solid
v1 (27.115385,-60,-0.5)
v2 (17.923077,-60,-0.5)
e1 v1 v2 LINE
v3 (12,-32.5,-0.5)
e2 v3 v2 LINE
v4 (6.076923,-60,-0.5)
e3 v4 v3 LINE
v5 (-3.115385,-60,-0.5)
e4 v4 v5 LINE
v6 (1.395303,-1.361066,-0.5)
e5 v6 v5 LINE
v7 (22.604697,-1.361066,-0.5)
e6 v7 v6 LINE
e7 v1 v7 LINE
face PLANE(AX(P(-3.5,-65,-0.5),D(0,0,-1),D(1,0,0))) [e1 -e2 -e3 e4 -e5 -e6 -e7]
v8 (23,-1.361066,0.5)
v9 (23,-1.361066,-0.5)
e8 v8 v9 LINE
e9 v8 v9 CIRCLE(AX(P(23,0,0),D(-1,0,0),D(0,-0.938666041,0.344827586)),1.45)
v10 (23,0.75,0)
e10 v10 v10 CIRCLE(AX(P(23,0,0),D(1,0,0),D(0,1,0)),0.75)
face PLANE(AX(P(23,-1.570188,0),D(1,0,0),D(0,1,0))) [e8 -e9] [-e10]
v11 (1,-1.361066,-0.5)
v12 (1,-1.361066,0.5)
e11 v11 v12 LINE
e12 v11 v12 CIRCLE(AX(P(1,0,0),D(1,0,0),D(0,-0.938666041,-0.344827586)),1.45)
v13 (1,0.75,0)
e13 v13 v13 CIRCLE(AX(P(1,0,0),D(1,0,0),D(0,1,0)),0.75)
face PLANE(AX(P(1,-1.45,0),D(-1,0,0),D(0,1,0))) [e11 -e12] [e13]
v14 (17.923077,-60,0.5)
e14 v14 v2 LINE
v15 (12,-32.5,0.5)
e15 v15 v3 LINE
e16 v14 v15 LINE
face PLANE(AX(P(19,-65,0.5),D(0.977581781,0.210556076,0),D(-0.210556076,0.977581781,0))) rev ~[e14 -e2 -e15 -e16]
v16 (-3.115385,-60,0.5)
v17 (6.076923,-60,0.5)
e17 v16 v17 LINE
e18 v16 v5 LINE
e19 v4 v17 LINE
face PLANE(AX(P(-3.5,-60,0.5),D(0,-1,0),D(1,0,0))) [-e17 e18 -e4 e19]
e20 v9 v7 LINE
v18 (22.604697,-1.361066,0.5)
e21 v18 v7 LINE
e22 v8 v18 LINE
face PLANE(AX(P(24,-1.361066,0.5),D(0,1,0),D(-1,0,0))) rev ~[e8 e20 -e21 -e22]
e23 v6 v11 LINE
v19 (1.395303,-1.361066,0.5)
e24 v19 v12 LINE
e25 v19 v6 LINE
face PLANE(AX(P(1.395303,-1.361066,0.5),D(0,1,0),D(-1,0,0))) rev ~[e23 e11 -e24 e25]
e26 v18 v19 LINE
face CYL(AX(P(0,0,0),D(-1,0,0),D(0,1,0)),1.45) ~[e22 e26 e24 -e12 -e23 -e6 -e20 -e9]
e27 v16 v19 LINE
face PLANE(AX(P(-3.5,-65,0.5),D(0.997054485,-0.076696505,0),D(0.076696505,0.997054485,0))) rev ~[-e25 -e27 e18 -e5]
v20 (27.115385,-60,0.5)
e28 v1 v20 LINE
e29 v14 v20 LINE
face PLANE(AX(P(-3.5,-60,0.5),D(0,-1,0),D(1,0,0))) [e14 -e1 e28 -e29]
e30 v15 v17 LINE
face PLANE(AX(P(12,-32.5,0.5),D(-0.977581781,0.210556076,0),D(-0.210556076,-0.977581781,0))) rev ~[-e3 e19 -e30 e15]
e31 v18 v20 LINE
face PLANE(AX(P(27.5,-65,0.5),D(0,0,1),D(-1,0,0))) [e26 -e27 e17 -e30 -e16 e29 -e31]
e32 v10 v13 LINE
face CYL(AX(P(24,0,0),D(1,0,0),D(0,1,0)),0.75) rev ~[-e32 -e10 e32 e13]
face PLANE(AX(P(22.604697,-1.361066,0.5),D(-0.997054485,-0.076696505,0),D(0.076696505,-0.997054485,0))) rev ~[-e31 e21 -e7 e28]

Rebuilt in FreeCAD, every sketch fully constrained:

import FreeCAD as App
import Part
import Sketcher
Q = App.Units.Quantity


def add_polygon(sketch, points):
    """Adds a closed chain of lines whose ends are joined by coincident constraints."""
    first, n = sketch.GeometryCount, len(points)
    for a, b in zip(points, points[1:] + points[:1]):
        sketch.addGeometry(Part.LineSegment(App.Vector(*a, 0), App.Vector(*b, 0)), False)
    for i in range(n):
        sketch.addConstraint(Sketcher.Constraint("Coincident", first + i, 2, first + (i + 1) % n, 1))

doc = App.newDocument("Part")
body = doc.addObject("PartDesign::Body", "Body")

sketch1 = body.newObject("Sketcher::SketchObject", "Sketch")
sketch1.AttachmentSupport = (doc.getObject("YZ_Plane"), [""])
sketch1.MapMode = "FlatFace"
sketch1.addGeometry(Part.Circle(App.Vector(0, 0, 0), App.Vector(0, 0, 1), 1.45), False)
sketch1.addConstraint([
    Sketcher.Constraint("Coincident", 0, 3, -1, 1),
    Sketcher.Constraint("Diameter", 0, Q("2.9 mm")),
])
pad1 = body.newObject("PartDesign::Pad", "Pad")
pad1.Profile = sketch1
pad1.Length = 24

sketch2 = body.newObject("Sketcher::SketchObject", "Sketch001")
sketch2.AttachmentSupport = (doc.getObject("XZ_Plane"), [""])
sketch2.MapMode = "FlatFace"
sketch2.AttachmentOffset = App.Placement(App.Vector(0, 0, 65), App.Rotation())
add_polygon(sketch2, [(-3.5, 0.5), (-3.5, -0.5), (27.5, -0.5), (27.5, 0.5)])
sketch2.addConstraint([
    Sketcher.Constraint("Vertical", 0),
    Sketcher.Constraint("Horizontal", 1),
    Sketcher.Constraint("Vertical", 2),
    Sketcher.Constraint("Horizontal", 3),
    Sketcher.Constraint("DistanceX", 1, 1, 1, 2, Q("31 mm")),
    Sketcher.Constraint("DistanceY", 0, 2, 0, 1, Q("1 mm")),
    Sketcher.Constraint("DistanceX", 0, 2, -1, 1, Q("3.5 mm")),
    Sketcher.Constraint("DistanceY", 0, 2, -1, 1, Q("0.5 mm")),
])
pad2 = body.newObject("PartDesign::Pad", "Pad001")
pad2.Profile = sketch2
pad2.Length = 65
pad2.Reversed = True

sketch3 = body.newObject("Sketcher::SketchObject", "Sketch002")
sketch3.AttachmentSupport = (doc.getObject("XY_Plane"), [""])
sketch3.MapMode = "FlatFace"
sketch3.AttachmentOffset = App.Placement(App.Vector(0, 0, 0.5), App.Rotation())
add_polygon(sketch3, [(27.5, -65), (27.5, 0), (24, 0), (24, -1.361066), (22.604697, -1.361066)])
add_polygon(sketch3, [(0, 0), (-3.5, 0), (-3.5, -65), (1.395303, -1.361066), (0, -1.361066)])
add_polygon(sketch3, [(5, -65), (19, -65), (12, -32.5)])
sketch3.addConstraint([
    Sketcher.Constraint("Vertical", 0),
    Sketcher.Constraint("Horizontal", 1),
    Sketcher.Constraint("Vertical", 2),
    Sketcher.Constraint("Horizontal", 3),
    Sketcher.Constraint("Horizontal", 5),
    Sketcher.Constraint("Vertical", 6),
    Sketcher.Constraint("Horizontal", 8),
    Sketcher.Constraint("Vertical", 9),
    Sketcher.Constraint("Horizontal", 10),
    Sketcher.Constraint("Coincident", 9, 2, -1, 1),
    Sketcher.Constraint("PointOnObject", 0, 2, -1),
    Sketcher.Constraint("Horizontal", 4, 2, 6, 2),
    Sketcher.Constraint("Horizontal", 3, 2, 7, 2),
    Sketcher.Constraint("Horizontal", 6, 2, 10, 2),
    Sketcher.Constraint("Equal", 1, 5),
    Sketcher.Constraint("Equal", 3, 8),
    Sketcher.Constraint("Equal", 11, 12),
    Sketcher.Constraint("DistanceX", 10, 1, 10, 2, Q("14 mm")),
    Sketcher.Constraint("DistanceY", 0, 1, 0, 2, Q("65 mm")),
    Sketcher.Constraint("DistanceX", 1, 2, 1, 1, Q("3.5 mm")),
    Sketcher.Constraint("DistanceX", -1, 1, 1, 2, Q("24 mm")),
    Sketcher.Constraint("DistanceX", -1, 1, 10, 2, Q("19 mm")),
    Sketcher.Constraint("DistanceY", 11, 2, -1, 1, Q("32.5 mm")),
    Sketcher.Constraint("DistanceX", 3, 2, 3, 1, Q("1.395303 mm")),
    Sketcher.Constraint("DistanceY", 2, 2, 2, 1, Q("1.361066 mm")),
])
pocket1 = body.newObject("PartDesign::Pocket", "Pocket")
pocket1.Profile = sketch3
pocket1.Length = 25

sketch4 = body.newObject("Sketcher::SketchObject", "Sketch003")
sketch4.AttachmentSupport = (doc.getObject("XY_Plane"), [""])
sketch4.MapMode = "FlatFace"
sketch4.AttachmentOffset = App.Placement(App.Vector(0, 0, 0.5), App.Rotation())
add_polygon(sketch4, [(-3.5, -60), (-3.5, -65), (27.5, -65), (27.5, -60)])
sketch4.addConstraint([
    Sketcher.Constraint("Vertical", 0),
    Sketcher.Constraint("Horizontal", 1),
    Sketcher.Constraint("Vertical", 2),
    Sketcher.Constraint("Horizontal", 3),
    Sketcher.Constraint("DistanceX", 1, 1, 1, 2, Q("31 mm")),
    Sketcher.Constraint("DistanceY", 0, 2, 0, 1, Q("5 mm")),
    Sketcher.Constraint("DistanceY", 0, 2, -1, 1, Q("65 mm")),
    Sketcher.Constraint("DistanceX", 0, 2, -1, 1, Q("3.5 mm")),
])
pocket2 = body.newObject("PartDesign::Pocket", "Pocket001")
pocket2.Profile = sketch4
pocket2.Length = 25

sketch5 = body.newObject("Sketcher::SketchObject", "Sketch004")
sketch5.AttachmentSupport = (doc.getObject("YZ_Plane"), [""])
sketch5.MapMode = "FlatFace"
sketch5.AttachmentOffset = App.Placement(App.Vector(0, 0, 24), App.Rotation())
sketch5.addGeometry(Part.Circle(App.Vector(0, 0, 0), App.Vector(0, 0, 1), 0.75), False)
sketch5.addConstraint([
    Sketcher.Constraint("Coincident", 0, 3, -1, 1),
    Sketcher.Constraint("Diameter", 0, Q("1.5 mm")),
])
pocket3 = body.newObject("PartDesign::Pocket", "Pocket002")
pocket3.Profile = sketch5
pocket3.Length = 40

sketch6 = body.newObject("Sketcher::SketchObject", "Sketch005")
sketch6.AttachmentSupport = (doc.getObject("XY_Plane"), [""])
sketch6.MapMode = "FlatFace"
add_polygon(sketch6, [(0, 1.45), (0, -1.45), (1, -1.45), (1, 1.45)])
add_polygon(sketch6, [(23, 1.45), (23, -1.570188), (24, -1.570188), (24, 1.45)])
sketch6.addConstraint([
    Sketcher.Constraint("Vertical", 0),
    Sketcher.Constraint("Horizontal", 1),
    Sketcher.Constraint("Vertical", 2),
    Sketcher.Constraint("Horizontal", 3),
    Sketcher.Constraint("Vertical", 4),
    Sketcher.Constraint("Horizontal", 5),
    Sketcher.Constraint("Vertical", 6),
    Sketcher.Constraint("Horizontal", 7),
    Sketcher.Constraint("Symmetric", 0, 2, 3, 2, -1, 1),
    Sketcher.Constraint("Horizontal", 3, 2, 6, 2),
    Sketcher.Constraint("Equal", 3, 5),
    Sketcher.Constraint("DistanceX", 1, 1, 1, 2, Q("1 mm")),
    Sketcher.Constraint("DistanceY", 0, 2, 0, 1, Q("2.9 mm")),
    Sketcher.Constraint("DistanceX", -1, 1, 4, 2, Q("23 mm")),
    Sketcher.Constraint("DistanceY", 4, 2, 4, 1, Q("3.020188 mm")),
])
pocket4 = body.newObject("PartDesign::Pocket", "Pocket003")
pocket4.Profile = sketch6
pocket4.Length = 25
pocket4.Midplane = True

doc.recompute()
